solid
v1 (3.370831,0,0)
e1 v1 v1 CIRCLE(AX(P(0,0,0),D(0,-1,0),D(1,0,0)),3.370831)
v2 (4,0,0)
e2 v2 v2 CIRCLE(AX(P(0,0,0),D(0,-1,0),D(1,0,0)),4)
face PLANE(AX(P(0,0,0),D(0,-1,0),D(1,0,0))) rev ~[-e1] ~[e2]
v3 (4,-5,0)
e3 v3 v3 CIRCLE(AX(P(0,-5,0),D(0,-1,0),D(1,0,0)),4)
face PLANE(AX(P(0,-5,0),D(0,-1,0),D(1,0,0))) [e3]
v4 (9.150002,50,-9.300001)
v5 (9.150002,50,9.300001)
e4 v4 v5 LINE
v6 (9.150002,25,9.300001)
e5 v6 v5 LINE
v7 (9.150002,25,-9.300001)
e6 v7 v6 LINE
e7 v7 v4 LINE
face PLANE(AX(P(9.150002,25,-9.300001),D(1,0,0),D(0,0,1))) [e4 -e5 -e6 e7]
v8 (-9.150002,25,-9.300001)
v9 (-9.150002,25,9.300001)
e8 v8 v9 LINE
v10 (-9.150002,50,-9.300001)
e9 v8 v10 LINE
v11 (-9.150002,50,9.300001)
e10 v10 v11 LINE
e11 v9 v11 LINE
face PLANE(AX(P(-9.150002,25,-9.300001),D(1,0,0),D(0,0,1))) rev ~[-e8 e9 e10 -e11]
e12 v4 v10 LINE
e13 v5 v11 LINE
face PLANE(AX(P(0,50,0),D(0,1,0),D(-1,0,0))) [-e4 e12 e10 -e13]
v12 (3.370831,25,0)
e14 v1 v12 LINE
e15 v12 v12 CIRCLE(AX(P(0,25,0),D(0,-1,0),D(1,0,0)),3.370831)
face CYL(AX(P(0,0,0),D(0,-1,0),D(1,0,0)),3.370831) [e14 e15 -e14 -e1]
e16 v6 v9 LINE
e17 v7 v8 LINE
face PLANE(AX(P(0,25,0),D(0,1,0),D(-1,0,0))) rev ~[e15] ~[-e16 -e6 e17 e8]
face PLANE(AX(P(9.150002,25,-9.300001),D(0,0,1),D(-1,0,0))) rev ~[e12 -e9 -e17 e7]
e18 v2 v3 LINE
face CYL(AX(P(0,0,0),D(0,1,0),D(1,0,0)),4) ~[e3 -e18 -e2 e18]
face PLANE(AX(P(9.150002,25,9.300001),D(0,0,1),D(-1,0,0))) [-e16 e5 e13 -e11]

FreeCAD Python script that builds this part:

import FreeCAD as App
import Part
import Sketcher
from FreeCAD import Vector
Q = App.Units.Quantity

doc = App.newDocument("Part")
body = doc.addObject("PartDesign::Body", "Body")

sketch1 = body.newObject("Sketcher::SketchObject", "Sketch")
sketch1.AttachmentSupport = (doc.getObject("XZ_Plane"), [""])
sketch1.MapMode = "FlatFace"
sketch1.addGeometry(Part.Circle(Vector(0, 0, 0), Vector(0, 0, 1), 4), False)
sketch1.addConstraint([
    Sketcher.Constraint("Coincident", 0, 3, -1, 1),
    Sketcher.Constraint("Diameter", 0, Q("8 mm")),
])
pad1 = body.newObject("PartDesign::Pad", "Pad")
pad1.Profile = sketch1
pad1.Length = 5

sketch2 = body.newObject("Sketcher::SketchObject", "Sketch001")
sketch2.AttachmentSupport = (doc.getObject("XZ_Plane"), [""])
sketch2.MapMode = "FlatFace"
sketch2.addGeometry(Part.Circle(Vector(0, 0, 0), Vector(0, 0, 1), 3.4), False)
sketch2.addConstraint([
    Sketcher.Constraint("Coincident", 0, 3, -1, 1),
    Sketcher.Constraint("Diameter", 0, Q("6.741662 mm")),
])
pad2 = body.newObject("PartDesign::Pad", "Pad001")
pad2.Profile = sketch2
pad2.Length = 25
pad2.Reversed = True

sketch3 = body.newObject("Sketcher::SketchObject", "Sketch002")
sketch3.AttachmentSupport = (doc.getObject("XZ_Plane"), [""])
sketch3.MapMode = "FlatFace"
sketch3.AttachmentOffset = App.Placement(Vector(0, 0, -25), App.Rotation())
sketch3.addGeometry([
    Part.LineSegment(Vector(9, 9, 0), Vector(9, -9, 0)),
    Part.LineSegment(Vector(9, -9, 0), Vector(-9, -9, 0)),
    Part.LineSegment(Vector(-9, -9, 0), Vector(-9, 9, 0)),
    Part.LineSegment(Vector(-9, 9, 0), Vector(9, 9, 0)),
], False)
sketch3.addConstraint([
    Sketcher.Constraint("Coincident", 0, 2, 1, 1),
    Sketcher.Constraint("Coincident", 1, 2, 2, 1),
    Sketcher.Constraint("Coincident", 2, 2, 3, 1),
    Sketcher.Constraint("Coincident", 3, 2, 0, 1),
    Sketcher.Constraint("Vertical", 0),
    Sketcher.Constraint("Horizontal", 1),
    Sketcher.Constraint("Vertical", 2),
    Sketcher.Constraint("Horizontal", 3),
    Sketcher.Constraint("Symmetric", 0, 2, 2, 2, -1, 1),
    Sketcher.Constraint("DistanceY", 0, 2, 0, 1, Q("18.600002 mm")),
    Sketcher.Constraint("DistanceX", 1, 2, 1, 1, Q("18.300004 mm")),
])
pad3 = body.newObject("PartDesign::Pad", "Pad002")
pad3.Profile = sketch3
pad3.Length = 25
pad3.Reversed = True

doc.recompute()
